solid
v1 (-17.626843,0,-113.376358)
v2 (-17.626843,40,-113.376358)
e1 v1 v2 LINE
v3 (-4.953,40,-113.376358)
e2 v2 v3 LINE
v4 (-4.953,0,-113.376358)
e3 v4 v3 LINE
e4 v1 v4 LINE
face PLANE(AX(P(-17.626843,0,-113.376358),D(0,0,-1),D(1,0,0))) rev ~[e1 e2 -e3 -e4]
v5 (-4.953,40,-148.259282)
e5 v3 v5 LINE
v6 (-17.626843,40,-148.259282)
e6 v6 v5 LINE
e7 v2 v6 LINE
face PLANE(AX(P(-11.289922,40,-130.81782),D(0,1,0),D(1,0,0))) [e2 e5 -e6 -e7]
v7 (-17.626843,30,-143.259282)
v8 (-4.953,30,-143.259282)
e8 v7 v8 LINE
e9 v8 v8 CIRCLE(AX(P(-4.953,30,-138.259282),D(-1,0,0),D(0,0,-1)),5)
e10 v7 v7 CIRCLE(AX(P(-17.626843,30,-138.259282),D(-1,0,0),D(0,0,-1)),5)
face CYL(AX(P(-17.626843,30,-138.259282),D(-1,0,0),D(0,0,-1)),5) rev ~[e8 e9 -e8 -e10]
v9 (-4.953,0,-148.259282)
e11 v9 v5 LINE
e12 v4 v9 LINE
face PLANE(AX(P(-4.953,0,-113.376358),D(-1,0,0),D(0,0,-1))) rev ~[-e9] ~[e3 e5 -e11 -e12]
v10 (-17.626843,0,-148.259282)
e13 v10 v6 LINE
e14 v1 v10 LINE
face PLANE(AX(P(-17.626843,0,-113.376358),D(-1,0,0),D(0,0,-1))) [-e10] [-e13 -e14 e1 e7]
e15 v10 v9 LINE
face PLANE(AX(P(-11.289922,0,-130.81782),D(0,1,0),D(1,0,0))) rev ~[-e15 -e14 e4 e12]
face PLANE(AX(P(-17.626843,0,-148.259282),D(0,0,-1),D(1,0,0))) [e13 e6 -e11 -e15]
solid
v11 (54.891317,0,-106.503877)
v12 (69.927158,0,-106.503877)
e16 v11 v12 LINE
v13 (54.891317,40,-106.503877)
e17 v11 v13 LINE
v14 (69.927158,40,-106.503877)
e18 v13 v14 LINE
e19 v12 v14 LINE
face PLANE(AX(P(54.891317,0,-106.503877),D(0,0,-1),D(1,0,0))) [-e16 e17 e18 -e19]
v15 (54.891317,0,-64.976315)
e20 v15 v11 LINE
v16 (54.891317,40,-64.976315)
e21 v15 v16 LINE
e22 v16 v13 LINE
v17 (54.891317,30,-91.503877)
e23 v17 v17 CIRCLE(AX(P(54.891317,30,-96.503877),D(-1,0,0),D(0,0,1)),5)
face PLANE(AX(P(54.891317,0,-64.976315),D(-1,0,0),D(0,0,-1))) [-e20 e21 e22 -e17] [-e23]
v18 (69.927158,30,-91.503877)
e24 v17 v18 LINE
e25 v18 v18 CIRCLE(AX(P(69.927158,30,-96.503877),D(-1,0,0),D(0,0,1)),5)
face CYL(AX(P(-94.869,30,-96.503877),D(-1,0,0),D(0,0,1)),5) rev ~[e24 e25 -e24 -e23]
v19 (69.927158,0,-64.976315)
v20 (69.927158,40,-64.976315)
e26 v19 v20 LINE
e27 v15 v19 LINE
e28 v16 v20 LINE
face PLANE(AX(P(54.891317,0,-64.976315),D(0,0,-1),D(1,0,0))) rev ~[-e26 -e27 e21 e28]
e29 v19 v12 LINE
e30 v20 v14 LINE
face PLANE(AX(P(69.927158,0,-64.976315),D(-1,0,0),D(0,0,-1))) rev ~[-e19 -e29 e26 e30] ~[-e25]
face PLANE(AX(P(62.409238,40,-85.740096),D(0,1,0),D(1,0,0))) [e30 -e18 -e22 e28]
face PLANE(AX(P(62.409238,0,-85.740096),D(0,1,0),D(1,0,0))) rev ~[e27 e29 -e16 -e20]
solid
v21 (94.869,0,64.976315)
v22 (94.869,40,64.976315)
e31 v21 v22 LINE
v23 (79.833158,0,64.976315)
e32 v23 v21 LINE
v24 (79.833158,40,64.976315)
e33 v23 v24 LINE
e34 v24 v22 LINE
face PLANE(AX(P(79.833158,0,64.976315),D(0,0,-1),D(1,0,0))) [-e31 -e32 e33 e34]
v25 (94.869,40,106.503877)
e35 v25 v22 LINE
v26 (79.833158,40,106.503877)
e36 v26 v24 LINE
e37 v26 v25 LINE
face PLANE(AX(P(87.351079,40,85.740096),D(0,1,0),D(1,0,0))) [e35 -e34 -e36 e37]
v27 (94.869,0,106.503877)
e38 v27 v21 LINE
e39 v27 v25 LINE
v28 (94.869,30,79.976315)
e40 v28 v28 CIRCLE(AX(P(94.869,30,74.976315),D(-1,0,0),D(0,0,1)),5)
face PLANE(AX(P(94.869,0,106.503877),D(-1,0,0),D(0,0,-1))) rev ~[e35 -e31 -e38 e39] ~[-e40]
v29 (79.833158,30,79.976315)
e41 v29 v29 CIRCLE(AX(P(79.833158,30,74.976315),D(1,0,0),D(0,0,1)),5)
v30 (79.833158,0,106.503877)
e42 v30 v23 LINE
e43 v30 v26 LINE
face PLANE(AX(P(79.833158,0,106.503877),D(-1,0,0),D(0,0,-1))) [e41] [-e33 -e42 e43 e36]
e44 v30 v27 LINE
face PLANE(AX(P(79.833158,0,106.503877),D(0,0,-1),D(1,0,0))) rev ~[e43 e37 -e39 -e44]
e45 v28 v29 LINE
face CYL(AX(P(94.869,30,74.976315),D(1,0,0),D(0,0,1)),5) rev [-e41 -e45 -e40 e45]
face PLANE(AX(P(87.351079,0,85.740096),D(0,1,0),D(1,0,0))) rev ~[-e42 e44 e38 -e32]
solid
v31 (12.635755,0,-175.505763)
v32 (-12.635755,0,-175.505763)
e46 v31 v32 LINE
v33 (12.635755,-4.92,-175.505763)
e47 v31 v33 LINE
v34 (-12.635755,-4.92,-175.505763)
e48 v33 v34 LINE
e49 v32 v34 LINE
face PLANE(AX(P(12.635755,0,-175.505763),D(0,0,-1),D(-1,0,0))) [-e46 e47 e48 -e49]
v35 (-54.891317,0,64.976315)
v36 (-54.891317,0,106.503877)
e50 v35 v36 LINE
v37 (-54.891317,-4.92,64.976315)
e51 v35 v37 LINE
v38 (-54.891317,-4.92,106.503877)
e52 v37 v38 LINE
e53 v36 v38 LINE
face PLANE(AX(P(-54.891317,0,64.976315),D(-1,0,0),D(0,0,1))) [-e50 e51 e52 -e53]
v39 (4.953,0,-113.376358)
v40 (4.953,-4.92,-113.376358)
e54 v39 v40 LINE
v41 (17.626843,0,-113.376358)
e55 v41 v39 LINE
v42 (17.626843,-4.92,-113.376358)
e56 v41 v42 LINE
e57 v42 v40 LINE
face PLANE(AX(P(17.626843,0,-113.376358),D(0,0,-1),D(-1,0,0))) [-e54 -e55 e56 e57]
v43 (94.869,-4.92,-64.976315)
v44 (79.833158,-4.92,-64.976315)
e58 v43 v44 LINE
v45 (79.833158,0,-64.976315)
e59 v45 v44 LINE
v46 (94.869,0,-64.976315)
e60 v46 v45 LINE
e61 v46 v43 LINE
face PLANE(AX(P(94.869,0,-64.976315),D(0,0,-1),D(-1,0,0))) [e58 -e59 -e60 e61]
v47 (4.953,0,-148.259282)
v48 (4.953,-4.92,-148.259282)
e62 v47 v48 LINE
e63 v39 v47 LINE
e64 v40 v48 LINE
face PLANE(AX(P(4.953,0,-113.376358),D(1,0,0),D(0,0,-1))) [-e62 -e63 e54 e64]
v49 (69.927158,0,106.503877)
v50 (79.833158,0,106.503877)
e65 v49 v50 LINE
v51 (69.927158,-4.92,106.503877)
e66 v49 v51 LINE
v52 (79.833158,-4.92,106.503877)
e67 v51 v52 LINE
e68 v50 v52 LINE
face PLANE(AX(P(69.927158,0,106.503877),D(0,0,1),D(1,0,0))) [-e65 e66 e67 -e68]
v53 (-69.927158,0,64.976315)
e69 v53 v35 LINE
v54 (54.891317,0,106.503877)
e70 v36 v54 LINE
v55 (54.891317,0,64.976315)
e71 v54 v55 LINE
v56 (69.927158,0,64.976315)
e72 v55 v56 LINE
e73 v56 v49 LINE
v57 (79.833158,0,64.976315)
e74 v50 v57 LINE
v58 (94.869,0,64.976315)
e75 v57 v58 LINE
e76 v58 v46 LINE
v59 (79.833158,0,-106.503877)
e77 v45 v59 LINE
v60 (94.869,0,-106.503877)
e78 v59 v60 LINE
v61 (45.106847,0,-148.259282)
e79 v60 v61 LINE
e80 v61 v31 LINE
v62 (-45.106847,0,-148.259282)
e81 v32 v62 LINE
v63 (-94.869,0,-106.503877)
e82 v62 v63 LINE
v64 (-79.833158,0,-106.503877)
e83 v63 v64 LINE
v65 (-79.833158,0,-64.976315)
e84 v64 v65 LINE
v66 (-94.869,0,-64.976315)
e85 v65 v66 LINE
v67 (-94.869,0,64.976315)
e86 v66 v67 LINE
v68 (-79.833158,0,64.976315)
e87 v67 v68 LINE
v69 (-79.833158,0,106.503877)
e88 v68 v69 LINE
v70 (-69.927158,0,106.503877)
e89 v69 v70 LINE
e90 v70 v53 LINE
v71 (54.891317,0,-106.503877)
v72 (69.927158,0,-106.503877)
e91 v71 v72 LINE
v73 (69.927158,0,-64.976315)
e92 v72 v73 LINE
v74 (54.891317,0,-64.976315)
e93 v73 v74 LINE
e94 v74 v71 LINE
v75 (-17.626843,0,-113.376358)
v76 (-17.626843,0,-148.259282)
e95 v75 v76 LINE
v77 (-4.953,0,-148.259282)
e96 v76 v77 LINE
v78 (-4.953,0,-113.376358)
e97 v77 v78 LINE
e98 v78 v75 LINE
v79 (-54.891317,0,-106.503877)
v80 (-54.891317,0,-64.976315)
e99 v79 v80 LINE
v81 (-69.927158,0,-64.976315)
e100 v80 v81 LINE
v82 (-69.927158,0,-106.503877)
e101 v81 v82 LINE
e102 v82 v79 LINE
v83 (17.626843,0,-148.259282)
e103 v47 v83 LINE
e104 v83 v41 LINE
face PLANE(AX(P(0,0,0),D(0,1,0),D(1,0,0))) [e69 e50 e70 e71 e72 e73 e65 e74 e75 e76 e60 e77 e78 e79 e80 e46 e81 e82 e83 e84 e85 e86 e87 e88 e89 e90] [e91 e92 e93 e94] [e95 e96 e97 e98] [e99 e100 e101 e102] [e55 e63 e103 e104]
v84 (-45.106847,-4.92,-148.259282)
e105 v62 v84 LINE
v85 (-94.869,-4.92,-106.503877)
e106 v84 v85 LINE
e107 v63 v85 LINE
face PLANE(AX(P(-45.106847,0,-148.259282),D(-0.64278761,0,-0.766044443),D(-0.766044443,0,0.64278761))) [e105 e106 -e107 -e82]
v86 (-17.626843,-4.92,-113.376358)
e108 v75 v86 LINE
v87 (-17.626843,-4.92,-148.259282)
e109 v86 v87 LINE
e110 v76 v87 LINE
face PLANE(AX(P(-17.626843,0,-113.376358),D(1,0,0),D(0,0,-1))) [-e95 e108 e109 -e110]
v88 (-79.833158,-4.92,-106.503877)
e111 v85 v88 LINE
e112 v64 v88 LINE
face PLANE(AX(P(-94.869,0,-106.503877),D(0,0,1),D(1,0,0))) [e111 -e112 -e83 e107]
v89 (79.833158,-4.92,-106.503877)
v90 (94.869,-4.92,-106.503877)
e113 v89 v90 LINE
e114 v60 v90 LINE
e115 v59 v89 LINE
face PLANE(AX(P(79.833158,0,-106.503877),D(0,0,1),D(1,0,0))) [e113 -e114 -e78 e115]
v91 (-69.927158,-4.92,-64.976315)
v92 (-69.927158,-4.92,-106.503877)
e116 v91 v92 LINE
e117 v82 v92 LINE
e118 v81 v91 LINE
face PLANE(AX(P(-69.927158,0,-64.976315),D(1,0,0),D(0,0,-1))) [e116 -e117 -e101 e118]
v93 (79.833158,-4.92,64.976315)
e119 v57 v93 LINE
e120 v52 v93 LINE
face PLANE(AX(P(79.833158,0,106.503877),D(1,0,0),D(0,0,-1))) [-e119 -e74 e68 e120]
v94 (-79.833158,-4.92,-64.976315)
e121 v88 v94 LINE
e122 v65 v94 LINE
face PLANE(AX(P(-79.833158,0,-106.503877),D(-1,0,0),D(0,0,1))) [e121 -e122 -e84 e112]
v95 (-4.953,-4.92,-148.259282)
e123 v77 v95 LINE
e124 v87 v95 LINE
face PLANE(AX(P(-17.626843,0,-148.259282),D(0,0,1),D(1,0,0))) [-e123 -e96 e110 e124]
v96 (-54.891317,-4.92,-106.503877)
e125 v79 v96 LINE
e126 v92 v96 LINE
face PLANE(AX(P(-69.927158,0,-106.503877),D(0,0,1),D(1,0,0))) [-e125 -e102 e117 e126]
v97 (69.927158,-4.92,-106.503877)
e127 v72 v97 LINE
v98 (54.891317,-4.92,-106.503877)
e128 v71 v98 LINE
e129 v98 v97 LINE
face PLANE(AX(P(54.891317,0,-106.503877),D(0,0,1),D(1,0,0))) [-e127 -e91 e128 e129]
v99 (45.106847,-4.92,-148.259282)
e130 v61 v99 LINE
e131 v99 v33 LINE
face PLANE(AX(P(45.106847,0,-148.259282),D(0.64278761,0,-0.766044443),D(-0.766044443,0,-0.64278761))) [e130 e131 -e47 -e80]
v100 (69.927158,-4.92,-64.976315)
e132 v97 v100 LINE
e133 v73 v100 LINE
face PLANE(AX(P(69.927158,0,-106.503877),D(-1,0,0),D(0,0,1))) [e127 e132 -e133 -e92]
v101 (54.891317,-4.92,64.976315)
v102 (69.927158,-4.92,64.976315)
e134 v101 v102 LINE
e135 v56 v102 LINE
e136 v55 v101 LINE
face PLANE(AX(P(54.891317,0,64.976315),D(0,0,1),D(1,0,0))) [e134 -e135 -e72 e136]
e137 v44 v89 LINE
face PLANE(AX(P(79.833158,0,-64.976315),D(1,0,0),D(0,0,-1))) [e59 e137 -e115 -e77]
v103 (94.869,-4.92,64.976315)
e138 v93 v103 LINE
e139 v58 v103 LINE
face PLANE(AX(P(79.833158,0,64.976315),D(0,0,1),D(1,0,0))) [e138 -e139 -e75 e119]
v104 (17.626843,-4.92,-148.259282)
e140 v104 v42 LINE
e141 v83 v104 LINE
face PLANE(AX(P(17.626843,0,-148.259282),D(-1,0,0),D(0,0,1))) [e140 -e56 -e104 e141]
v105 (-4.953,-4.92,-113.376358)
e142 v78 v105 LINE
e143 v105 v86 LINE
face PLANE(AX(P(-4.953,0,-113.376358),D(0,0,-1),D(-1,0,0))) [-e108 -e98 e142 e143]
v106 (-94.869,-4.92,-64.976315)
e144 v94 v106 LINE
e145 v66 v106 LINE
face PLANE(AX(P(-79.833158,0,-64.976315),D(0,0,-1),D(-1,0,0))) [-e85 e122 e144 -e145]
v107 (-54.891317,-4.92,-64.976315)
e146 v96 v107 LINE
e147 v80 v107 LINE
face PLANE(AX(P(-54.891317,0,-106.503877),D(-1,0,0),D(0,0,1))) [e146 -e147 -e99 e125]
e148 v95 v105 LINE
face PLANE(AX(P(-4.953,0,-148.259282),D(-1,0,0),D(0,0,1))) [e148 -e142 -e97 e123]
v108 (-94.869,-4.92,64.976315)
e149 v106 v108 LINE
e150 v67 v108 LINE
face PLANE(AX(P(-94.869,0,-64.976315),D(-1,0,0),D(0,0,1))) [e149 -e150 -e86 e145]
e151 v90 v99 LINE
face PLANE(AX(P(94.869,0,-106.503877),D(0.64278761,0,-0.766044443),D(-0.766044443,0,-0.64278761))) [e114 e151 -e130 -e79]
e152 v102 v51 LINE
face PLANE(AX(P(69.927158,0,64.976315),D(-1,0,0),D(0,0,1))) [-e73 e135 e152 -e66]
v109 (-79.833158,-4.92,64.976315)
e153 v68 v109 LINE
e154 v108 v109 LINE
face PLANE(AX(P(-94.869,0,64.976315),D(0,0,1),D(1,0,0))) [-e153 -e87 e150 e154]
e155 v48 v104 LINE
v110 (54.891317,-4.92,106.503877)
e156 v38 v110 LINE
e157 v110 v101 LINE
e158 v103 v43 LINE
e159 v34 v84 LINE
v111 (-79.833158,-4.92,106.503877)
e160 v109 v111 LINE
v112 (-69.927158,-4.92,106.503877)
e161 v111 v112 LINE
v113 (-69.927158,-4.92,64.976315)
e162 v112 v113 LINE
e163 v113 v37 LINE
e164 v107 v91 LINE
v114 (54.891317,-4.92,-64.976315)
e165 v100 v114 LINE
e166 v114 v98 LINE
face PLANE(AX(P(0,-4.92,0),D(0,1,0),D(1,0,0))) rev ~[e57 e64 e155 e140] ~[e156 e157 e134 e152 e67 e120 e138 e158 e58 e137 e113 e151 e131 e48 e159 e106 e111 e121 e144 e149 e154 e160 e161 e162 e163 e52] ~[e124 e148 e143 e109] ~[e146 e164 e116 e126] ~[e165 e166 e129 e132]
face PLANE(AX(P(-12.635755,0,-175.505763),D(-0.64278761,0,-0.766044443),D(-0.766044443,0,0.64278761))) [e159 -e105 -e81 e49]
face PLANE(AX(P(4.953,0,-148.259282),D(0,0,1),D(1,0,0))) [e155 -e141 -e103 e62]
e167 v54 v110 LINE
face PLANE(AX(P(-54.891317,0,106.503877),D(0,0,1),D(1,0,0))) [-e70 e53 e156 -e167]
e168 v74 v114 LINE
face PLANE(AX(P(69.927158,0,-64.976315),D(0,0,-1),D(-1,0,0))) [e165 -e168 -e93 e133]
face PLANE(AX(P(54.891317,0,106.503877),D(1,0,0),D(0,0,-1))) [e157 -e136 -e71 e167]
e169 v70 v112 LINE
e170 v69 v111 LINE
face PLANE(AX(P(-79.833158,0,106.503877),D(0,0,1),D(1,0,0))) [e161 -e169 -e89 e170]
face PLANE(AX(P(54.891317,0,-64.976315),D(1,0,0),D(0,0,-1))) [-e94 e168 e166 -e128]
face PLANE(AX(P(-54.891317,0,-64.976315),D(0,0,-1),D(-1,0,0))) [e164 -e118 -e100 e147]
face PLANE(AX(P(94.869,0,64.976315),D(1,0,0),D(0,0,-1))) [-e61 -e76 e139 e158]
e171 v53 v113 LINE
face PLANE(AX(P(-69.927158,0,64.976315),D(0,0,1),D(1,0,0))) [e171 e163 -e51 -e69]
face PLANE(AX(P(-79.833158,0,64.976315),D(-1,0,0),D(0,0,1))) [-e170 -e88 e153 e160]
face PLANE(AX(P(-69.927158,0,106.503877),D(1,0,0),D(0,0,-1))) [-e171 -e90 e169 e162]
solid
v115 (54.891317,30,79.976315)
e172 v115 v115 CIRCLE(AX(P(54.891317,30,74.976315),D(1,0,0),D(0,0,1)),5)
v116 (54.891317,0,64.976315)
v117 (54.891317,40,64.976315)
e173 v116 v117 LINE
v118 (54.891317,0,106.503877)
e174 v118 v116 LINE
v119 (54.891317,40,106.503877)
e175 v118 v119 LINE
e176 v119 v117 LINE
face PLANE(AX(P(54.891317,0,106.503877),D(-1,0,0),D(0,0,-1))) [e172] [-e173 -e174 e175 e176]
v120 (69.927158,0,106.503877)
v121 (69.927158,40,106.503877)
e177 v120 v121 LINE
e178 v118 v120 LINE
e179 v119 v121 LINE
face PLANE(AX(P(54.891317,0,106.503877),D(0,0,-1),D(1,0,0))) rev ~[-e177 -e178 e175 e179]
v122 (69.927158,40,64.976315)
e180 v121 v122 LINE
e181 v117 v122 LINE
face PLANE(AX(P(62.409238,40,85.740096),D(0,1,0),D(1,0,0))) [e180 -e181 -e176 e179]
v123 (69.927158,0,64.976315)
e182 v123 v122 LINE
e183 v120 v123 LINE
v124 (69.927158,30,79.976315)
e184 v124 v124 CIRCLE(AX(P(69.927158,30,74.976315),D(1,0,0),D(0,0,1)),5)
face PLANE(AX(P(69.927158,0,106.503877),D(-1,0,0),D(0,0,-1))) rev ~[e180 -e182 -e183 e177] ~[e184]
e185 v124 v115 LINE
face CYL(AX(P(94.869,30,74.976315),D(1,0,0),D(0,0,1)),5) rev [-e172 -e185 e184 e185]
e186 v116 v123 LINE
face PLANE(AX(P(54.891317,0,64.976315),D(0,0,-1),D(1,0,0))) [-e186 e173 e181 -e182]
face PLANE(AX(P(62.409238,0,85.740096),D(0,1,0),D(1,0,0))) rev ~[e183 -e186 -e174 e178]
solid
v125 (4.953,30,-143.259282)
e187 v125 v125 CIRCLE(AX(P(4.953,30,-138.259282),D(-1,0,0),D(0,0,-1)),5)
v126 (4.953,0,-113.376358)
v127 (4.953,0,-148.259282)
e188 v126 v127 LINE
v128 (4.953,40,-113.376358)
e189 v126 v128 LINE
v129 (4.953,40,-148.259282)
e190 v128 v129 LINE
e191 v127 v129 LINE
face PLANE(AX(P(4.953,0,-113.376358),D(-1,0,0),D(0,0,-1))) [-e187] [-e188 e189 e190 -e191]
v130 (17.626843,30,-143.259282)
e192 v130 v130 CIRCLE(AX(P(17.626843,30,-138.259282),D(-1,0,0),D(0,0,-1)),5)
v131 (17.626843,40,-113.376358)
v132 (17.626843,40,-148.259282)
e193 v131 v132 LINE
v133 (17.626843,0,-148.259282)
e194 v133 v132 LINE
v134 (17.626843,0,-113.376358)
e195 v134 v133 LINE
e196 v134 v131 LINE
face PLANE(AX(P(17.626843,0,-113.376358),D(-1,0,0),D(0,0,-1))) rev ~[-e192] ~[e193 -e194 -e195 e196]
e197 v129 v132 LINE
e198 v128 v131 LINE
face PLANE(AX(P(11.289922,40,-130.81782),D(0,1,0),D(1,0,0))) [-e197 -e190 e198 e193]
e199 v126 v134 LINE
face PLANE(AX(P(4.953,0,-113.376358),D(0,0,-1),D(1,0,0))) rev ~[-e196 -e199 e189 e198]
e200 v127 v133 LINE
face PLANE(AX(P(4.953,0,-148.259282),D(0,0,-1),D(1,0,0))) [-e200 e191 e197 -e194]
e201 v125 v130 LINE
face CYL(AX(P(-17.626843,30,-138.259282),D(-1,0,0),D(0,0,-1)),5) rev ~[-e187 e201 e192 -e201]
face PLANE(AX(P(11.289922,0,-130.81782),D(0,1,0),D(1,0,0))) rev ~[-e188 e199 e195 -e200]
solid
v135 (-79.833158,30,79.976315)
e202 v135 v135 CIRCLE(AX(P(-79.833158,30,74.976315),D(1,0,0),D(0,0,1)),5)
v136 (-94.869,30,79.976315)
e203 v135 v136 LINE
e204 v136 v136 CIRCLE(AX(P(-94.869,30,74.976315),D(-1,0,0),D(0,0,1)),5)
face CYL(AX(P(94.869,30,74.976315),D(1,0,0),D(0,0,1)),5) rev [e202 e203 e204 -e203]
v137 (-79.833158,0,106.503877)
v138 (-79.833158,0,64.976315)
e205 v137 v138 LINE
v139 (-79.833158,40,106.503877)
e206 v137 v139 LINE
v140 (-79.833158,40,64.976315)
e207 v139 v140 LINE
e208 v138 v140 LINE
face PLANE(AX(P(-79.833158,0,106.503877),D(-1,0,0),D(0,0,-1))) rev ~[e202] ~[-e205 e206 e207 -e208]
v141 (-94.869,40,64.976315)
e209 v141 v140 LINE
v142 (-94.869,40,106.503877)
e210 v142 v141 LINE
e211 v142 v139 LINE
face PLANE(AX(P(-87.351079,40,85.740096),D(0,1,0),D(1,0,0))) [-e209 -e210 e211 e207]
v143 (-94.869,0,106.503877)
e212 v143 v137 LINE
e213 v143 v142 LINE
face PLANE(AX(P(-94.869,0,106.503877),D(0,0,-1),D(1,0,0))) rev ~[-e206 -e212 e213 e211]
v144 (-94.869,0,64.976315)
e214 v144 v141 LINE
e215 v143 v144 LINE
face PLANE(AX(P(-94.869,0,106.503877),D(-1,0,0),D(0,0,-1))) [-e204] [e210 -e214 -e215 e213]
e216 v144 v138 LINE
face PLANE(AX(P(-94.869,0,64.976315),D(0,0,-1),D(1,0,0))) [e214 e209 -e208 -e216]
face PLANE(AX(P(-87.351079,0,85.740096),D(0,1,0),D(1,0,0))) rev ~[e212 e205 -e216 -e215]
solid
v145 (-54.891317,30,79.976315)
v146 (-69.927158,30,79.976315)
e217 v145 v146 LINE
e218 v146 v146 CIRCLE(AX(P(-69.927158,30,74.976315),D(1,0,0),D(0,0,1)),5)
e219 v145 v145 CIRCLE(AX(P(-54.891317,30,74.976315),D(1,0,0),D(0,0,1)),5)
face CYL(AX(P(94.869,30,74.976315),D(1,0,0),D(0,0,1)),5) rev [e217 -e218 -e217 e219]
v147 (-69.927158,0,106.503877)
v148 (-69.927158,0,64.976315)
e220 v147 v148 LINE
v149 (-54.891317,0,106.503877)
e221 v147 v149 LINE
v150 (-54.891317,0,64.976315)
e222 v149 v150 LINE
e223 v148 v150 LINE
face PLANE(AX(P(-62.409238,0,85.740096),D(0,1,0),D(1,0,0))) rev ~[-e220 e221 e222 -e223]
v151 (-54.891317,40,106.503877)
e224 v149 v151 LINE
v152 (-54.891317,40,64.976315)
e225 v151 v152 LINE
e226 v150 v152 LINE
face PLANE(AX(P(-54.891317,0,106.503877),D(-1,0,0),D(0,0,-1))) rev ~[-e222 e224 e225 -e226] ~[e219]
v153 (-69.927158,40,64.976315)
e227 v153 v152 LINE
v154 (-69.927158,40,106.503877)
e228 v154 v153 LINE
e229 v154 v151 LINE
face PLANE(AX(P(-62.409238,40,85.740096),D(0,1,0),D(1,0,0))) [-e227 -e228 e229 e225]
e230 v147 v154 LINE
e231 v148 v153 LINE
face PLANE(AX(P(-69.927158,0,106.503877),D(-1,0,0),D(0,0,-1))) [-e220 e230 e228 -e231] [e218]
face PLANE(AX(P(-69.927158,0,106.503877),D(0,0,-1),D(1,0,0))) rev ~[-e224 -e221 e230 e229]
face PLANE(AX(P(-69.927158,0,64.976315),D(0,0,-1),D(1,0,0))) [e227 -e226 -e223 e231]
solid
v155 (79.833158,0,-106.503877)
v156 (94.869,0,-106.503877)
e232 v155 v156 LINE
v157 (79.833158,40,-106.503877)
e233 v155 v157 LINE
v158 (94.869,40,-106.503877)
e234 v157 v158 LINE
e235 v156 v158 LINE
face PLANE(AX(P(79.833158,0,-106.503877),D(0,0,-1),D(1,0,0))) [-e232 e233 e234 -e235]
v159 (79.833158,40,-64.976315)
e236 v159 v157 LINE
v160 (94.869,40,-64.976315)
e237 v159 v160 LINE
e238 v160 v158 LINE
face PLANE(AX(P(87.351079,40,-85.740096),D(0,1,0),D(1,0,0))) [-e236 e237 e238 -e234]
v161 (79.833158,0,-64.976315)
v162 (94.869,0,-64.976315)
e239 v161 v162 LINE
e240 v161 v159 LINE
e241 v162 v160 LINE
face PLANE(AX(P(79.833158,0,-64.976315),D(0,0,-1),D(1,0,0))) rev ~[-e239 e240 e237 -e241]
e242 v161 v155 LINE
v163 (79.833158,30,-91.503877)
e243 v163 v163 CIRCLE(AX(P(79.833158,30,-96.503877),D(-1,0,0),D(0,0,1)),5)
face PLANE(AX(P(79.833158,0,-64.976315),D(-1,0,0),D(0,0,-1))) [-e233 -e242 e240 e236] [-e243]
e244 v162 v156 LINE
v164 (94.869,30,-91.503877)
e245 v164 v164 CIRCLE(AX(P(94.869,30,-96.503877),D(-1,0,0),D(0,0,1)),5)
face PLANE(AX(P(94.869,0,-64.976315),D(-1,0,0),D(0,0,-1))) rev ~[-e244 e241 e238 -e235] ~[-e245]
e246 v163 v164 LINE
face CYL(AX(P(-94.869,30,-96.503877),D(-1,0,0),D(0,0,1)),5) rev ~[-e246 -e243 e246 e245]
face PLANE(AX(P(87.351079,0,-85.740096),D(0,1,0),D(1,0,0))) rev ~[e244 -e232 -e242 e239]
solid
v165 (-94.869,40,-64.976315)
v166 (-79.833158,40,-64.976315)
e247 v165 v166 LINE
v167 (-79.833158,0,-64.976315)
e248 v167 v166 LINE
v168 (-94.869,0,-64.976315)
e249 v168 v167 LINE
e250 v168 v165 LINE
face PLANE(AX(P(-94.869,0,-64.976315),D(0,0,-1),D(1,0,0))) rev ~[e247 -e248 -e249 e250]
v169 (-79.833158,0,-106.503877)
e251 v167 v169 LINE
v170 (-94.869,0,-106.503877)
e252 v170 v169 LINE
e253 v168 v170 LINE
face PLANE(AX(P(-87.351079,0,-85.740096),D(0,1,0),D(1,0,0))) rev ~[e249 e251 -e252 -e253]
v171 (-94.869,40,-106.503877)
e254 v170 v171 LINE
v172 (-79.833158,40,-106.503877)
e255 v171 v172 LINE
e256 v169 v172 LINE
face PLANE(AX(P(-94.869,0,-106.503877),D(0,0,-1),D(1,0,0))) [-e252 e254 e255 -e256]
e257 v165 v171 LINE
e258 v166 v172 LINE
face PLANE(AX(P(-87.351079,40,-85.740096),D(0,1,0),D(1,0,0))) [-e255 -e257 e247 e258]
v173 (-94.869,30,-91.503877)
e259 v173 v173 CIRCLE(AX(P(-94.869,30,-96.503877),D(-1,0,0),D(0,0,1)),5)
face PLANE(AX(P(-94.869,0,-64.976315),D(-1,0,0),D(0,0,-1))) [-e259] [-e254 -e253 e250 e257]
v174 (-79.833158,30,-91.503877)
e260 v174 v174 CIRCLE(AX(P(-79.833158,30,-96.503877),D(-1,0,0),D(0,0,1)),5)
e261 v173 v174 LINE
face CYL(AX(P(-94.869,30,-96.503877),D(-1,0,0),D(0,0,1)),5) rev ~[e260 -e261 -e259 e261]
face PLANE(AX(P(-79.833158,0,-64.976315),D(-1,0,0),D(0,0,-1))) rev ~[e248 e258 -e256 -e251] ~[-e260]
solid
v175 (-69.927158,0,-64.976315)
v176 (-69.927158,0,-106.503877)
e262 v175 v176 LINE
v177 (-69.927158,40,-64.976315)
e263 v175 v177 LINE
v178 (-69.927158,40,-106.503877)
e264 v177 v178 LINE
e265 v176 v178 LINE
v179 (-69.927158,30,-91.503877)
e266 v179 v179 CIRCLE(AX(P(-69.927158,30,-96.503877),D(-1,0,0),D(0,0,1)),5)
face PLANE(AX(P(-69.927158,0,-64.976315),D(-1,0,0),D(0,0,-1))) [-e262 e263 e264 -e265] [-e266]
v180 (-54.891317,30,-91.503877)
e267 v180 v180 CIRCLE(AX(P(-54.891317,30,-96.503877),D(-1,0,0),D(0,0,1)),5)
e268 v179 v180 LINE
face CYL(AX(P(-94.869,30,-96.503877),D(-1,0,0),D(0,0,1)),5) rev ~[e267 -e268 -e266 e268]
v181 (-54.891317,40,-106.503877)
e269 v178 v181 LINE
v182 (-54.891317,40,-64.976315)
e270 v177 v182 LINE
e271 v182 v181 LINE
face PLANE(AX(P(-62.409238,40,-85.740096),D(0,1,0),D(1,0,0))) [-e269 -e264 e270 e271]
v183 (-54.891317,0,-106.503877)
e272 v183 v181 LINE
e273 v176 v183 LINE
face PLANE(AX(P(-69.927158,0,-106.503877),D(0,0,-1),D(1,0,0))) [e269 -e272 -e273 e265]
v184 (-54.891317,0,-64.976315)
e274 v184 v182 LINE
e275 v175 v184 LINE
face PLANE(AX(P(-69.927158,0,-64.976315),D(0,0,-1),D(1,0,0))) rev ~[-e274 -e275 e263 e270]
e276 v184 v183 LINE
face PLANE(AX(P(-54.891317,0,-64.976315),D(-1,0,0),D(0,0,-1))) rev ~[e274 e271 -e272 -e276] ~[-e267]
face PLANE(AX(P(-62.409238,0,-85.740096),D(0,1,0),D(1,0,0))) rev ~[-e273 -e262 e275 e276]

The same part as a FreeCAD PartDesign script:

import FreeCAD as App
import Part
import Sketcher

V = App.Vector
Q = App.Units.Quantity


def add_polygon(sketch, points):
    """Adds a closed chain of lines whose ends are joined by coincident constraints."""
    first, n = sketch.GeometryCount, len(points)
    for a, b in zip(points, points[1:] + points[:1]):
        sketch.addGeometry(Part.LineSegment(App.Vector(*a, 0), App.Vector(*b, 0)), False)
    for i in range(n):
        sketch.addConstraint(Sketcher.Constraint("Coincident", first + i, 2, first + (i + 1) % n, 1))

doc = App.newDocument("Part")
body = doc.addObject("PartDesign::Body", "Body")

# Sketch on XZ plane
sketch1 = body.newObject("Sketcher::SketchObject", "Sketch")
sketch1.AttachmentSupport = (doc.getObject("XZ_Plane"), [""])
sketch1.MapMode = "FlatFace"
add_polygon(sketch1, [(-18, -148), (-18, -113), (-5, -113), (-5, -148)])  # lines 0-3
sketch1.addConstraint(Sketcher.Constraint("Vertical", 0))
sketch1.addConstraint(Sketcher.Constraint("Horizontal", 1))
sketch1.addConstraint(Sketcher.Constraint("Vertical", 2))
sketch1.addConstraint(Sketcher.Constraint("Horizontal", 3))
sketch1.addConstraint(Sketcher.Constraint("DistanceX", 1, 2, -1, 1, Q("4.953 mm")))
sketch1.addConstraint(Sketcher.Constraint("DistanceX", 1, 1, 1, 2, Q("12.673843 mm")))
sketch1.addConstraint(Sketcher.Constraint("DistanceY", 0, 1, 0, 2, Q("34.882924 mm")))
sketch1.addConstraint(Sketcher.Constraint("DistanceY", 2, 2, -1, 1, Q("148.259282 mm")))
pad1 = body.newObject("PartDesign::Pad", "Pad")
pad1.Profile = sketch1
pad1.Length = 40
pad1.Reversed = True
body2 = doc.addObject("PartDesign::Body", "Body001")

# Sketch on XZ plane
sketch2 = body2.newObject("Sketcher::SketchObject", "Sketch001")
sketch2.AttachmentSupport = (doc.getObject("XZ_Plane001"), [""])
sketch2.MapMode = "FlatFace"
add_polygon(sketch2, [(-95, -107), (-95, -65), (-80, -65), (-80, -107)])  # lines 0-3
sketch2.addConstraint(Sketcher.Constraint("Vertical", 0))
sketch2.addConstraint(Sketcher.Constraint("Horizontal", 1))
sketch2.addConstraint(Sketcher.Constraint("Vertical", 2))
sketch2.addConstraint(Sketcher.Constraint("Horizontal", 3))
sketch2.addConstraint(Sketcher.Constraint("DistanceX", 0, 2, -1, 1, Q("94.869 mm")))
sketch2.addConstraint(Sketcher.Constraint("DistanceX", 1, 1, 1, 2, Q("15.035842 mm")))
sketch2.addConstraint(Sketcher.Constraint("DistanceY", 0, 1, 0, 2, Q("41.527562 mm")))
sketch2.addConstraint(Sketcher.Constraint("DistanceY", 0, 2, -1, 1, Q("64.976315 mm")))
pad2 = body2.newObject("PartDesign::Pad", "Pad001")
pad2.Profile = sketch2
pad2.Length = 40
pad2.Reversed = True
body3 = doc.addObject("PartDesign::Body", "Body002")

# Sketch on XZ plane
sketch3 = body3.newObject("Sketcher::SketchObject", "Sketch002")
sketch3.AttachmentSupport = (doc.getObject("XZ_Plane002"), [""])
sketch3.MapMode = "FlatFace"
add_polygon(sketch3, [(-70, -107), (-70, -65), (-55, -65), (-55, -107)])  # lines 0-3
sketch3.addConstraint(Sketcher.Constraint("Vertical", 0))
sketch3.addConstraint(Sketcher.Constraint("Horizontal", 1))
sketch3.addConstraint(Sketcher.Constraint("Vertical", 2))
sketch3.addConstraint(Sketcher.Constraint("Horizontal", 3))
sketch3.addConstraint(Sketcher.Constraint("DistanceX", 1, 1, 1, 2, Q("15.035842 mm")))
sketch3.addConstraint(Sketcher.Constraint("DistanceY", 0, 1, 0, 2, Q("41.527562 mm")))
sketch3.addConstraint(Sketcher.Constraint("DistanceX", 0, 2, -1, 1, Q("69.927158 mm")))
sketch3.addConstraint(Sketcher.Constraint("DistanceY", 0, 2, -1, 1, Q("64.976315 mm")))
pad3 = body3.newObject("PartDesign::Pad", "Pad002")
pad3.Profile = sketch3
pad3.Length = 40
pad3.Reversed = True
body4 = doc.addObject("PartDesign::Body", "Body003")

# Sketch on XZ plane
sketch4 = body4.newObject("Sketcher::SketchObject", "Sketch003")
sketch4.AttachmentSupport = (doc.getObject("XZ_Plane003"), [""])
sketch4.MapMode = "FlatFace"
add_polygon(sketch4, [(55, -107), (55, -65), (70, -65), (70, -107)])  # lines 0-3
sketch4.addConstraint(Sketcher.Constraint("Vertical", 0))
sketch4.addConstraint(Sketcher.Constraint("Horizontal", 1))
sketch4.addConstraint(Sketcher.Constraint("Vertical", 2))
sketch4.addConstraint(Sketcher.Constraint("Horizontal", 3))
sketch4.addConstraint(Sketcher.Constraint("DistanceX", 1, 1, 1, 2, Q("15.035842 mm")))
sketch4.addConstraint(Sketcher.Constraint("DistanceY", 0, 1, 0, 2, Q("41.527562 mm")))
sketch4.addConstraint(Sketcher.Constraint("DistanceX", -1, 1, 1, 2, Q("69.927158 mm")))
sketch4.addConstraint(Sketcher.Constraint("DistanceY", 0, 2, -1, 1, Q("64.976315 mm")))
pad4 = body4.newObject("PartDesign::Pad", "Pad003")
pad4.Profile = sketch4
pad4.Length = 40
pad4.Reversed = True
body5 = doc.addObject("PartDesign::Body", "Body004")

# Sketch on XZ plane
sketch5 = body5.newObject("Sketcher::SketchObject", "Sketch004")
sketch5.AttachmentSupport = (doc.getObject("XZ_Plane004"), [""])
sketch5.MapMode = "FlatFace"
add_polygon(sketch5, [(80, -107), (80, -65), (95, -65), (95, -107)])  # lines 0-3
sketch5.addConstraint(Sketcher.Constraint("Vertical", 0))
sketch5.addConstraint(Sketcher.Constraint("Horizontal", 1))
sketch5.addConstraint(Sketcher.Constraint("Vertical", 2))
sketch5.addConstraint(Sketcher.Constraint("Horizontal", 3))
sketch5.addConstraint(Sketcher.Constraint("DistanceX", -1, 1, 1, 2, Q("94.869 mm")))
sketch5.addConstraint(Sketcher.Constraint("DistanceX", 1, 1, 1, 2, Q("15.035842 mm")))
sketch5.addConstraint(Sketcher.Constraint("DistanceY", 0, 1, 0, 2, Q("41.527562 mm")))
sketch5.addConstraint(Sketcher.Constraint("DistanceY", 0, 2, -1, 1, Q("64.976315 mm")))
pad5 = body5.newObject("PartDesign::Pad", "Pad004")
pad5.Profile = sketch5
pad5.Length = 40
pad5.Reversed = True
body6 = doc.addObject("PartDesign::Body", "Body005")

# Sketch on XZ plane
sketch6 = body6.newObject("Sketcher::SketchObject", "Sketch005")
sketch6.AttachmentSupport = (doc.getObject("XZ_Plane005"), [""])
sketch6.MapMode = "FlatFace"
add_polygon(sketch6, [(-95, 65), (-95, 107), (-80, 107), (-80, 65)])  # lines 0-3
sketch6.addConstraint(Sketcher.Constraint("Vertical", 0))
sketch6.addConstraint(Sketcher.Constraint("Horizontal", 1))
sketch6.addConstraint(Sketcher.Constraint("Vertical", 2))
sketch6.addConstraint(Sketcher.Constraint("Horizontal", 3))
sketch6.addConstraint(Sketcher.Constraint("DistanceX", 0, 2, -1, 1, Q("94.869 mm")))
sketch6.addConstraint(Sketcher.Constraint("DistanceX", 1, 1, 1, 2, Q("15.035842 mm")))
sketch6.addConstraint(Sketcher.Constraint("DistanceY", 0, 1, 0, 2, Q("41.527562 mm")))
sketch6.addConstraint(Sketcher.Constraint("DistanceY", -1, 1, 0, 2, Q("106.503877 mm")))
pad6 = body6.newObject("PartDesign::Pad", "Pad005")
pad6.Profile = sketch6
pad6.Length = 40
pad6.Reversed = True
body7 = doc.addObject("PartDesign::Body", "Body006")

# Sketch on XZ plane
sketch7 = body7.newObject("Sketcher::SketchObject", "Sketch006")
sketch7.AttachmentSupport = (doc.getObject("XZ_Plane006"), [""])
sketch7.MapMode = "FlatFace"
add_polygon(sketch7, [(-70, 65), (-70, 107), (-55, 107), (-55, 65)])  # lines 0-3
sketch7.addConstraint(Sketcher.Constraint("Vertical", 0))
sketch7.addConstraint(Sketcher.Constraint("Horizontal", 1))
sketch7.addConstraint(Sketcher.Constraint("Vertical", 2))
sketch7.addConstraint(Sketcher.Constraint("Horizontal", 3))
sketch7.addConstraint(Sketcher.Constraint("DistanceX", 1, 1, 1, 2, Q("15.035842 mm")))
sketch7.addConstraint(Sketcher.Constraint("DistanceY", 0, 1, 0, 2, Q("41.527562 mm")))
sketch7.addConstraint(Sketcher.Constraint("DistanceX", 0, 2, -1, 1, Q("69.927158 mm")))
sketch7.addConstraint(Sketcher.Constraint("DistanceY", -1, 1, 0, 2, Q("106.503877 mm")))
pad7 = body7.newObject("PartDesign::Pad", "Pad006")
pad7.Profile = sketch7
pad7.Length = 40
pad7.Reversed = True
body8 = doc.addObject("PartDesign::Body", "Body007")

# Sketch on XZ plane
sketch8 = body8.newObject("Sketcher::SketchObject", "Sketch007")
sketch8.AttachmentSupport = (doc.getObject("XZ_Plane007"), [""])
sketch8.MapMode = "FlatFace"
add_polygon(sketch8, [(55, 65), (55, 107), (70, 107), (70, 65)])  # lines 0-3
sketch8.addConstraint(Sketcher.Constraint("Vertical", 0))
sketch8.addConstraint(Sketcher.Constraint("Horizontal", 1))
sketch8.addConstraint(Sketcher.Constraint("Vertical", 2))
sketch8.addConstraint(Sketcher.Constraint("Horizontal", 3))
sketch8.addConstraint(Sketcher.Constraint("DistanceX", 1, 1, 1, 2, Q("15.035842 mm")))
sketch8.addConstraint(Sketcher.Constraint("DistanceY", 0, 1, 0, 2, Q("41.527562 mm")))
sketch8.addConstraint(Sketcher.Constraint("DistanceX", -1, 1, 1, 2, Q("69.927158 mm")))
sketch8.addConstraint(Sketcher.Constraint("DistanceY", -1, 1, 0, 2, Q("106.503877 mm")))
pad8 = body8.newObject("PartDesign::Pad", "Pad007")
pad8.Profile = sketch8
pad8.Length = 40
pad8.Reversed = True
body9 = doc.addObject("PartDesign::Body", "Body008")

# Sketch on XZ plane
sketch9 = body9.newObject("Sketcher::SketchObject", "Sketch008")
sketch9.AttachmentSupport = (doc.getObject("XZ_Plane008"), [""])
sketch9.MapMode = "FlatFace"
add_polygon(sketch9, [(80, 65), (80, 107), (95, 107), (95, 65)])  # lines 0-3
sketch9.addConstraint(Sketcher.Constraint("Vertical", 0))
sketch9.addConstraint(Sketcher.Constraint("Horizontal", 1))
sketch9.addConstraint(Sketcher.Constraint("Vertical", 2))
sketch9.addConstraint(Sketcher.Constraint("Horizontal", 3))
sketch9.addConstraint(Sketcher.Constraint("DistanceX", -1, 1, 1, 2, Q("94.869 mm")))
sketch9.addConstraint(Sketcher.Constraint("DistanceX", 1, 1, 1, 2, Q("15.035842 mm")))
sketch9.addConstraint(Sketcher.Constraint("DistanceY", 0, 1, 0, 2, Q("41.527562 mm")))
sketch9.addConstraint(Sketcher.Constraint("DistanceY", -1, 1, 0, 2, Q("106.503877 mm")))
pad9 = body9.newObject("PartDesign::Pad", "Pad008")
pad9.Profile = sketch9
pad9.Length = 40
pad9.Reversed = True
body10 = doc.addObject("PartDesign::Body", "Body009")

# Sketch on XZ plane
sketch10 = body10.newObject("Sketcher::SketchObject", "Sketch009")
sketch10.AttachmentSupport = (doc.getObject("XZ_Plane009"), [""])
sketch10.MapMode = "FlatFace"
add_polygon(sketch10, [(5, -148), (5, -113), (18, -113), (18, -148)])  # lines 0-3
sketch10.addConstraint(Sketcher.Constraint("Vertical", 0))
sketch10.addConstraint(Sketcher.Constraint("Horizontal", 1))
sketch10.addConstraint(Sketcher.Constraint("Vertical", 2))
sketch10.addConstraint(Sketcher.Constraint("Horizontal", 3))
sketch10.addConstraint(Sketcher.Constraint("DistanceX", -1, 1, 0, 2, Q("4.953 mm")))
sketch10.addConstraint(Sketcher.Constraint("DistanceX", 1, 1, 1, 2, Q("12.673843 mm")))
sketch10.addConstraint(Sketcher.Constraint("DistanceY", 0, 1, 0, 2, Q("34.882924 mm")))
sketch10.addConstraint(Sketcher.Constraint("DistanceY", 2, 2, -1, 1, Q("148.259282 mm")))
pad10 = body10.newObject("PartDesign::Pad", "Pad009")
pad10.Profile = sketch10
pad10.Length = 40
pad10.Reversed = True
body11 = doc.addObject("PartDesign::Body", "Body010")

# Sketch on XZ plane
sketch11 = body11.newObject("Sketcher::SketchObject", "Sketch010")
sketch11.AttachmentSupport = (doc.getObject("XZ_Plane010"), [""])
sketch11.MapMode = "FlatFace"
add_polygon(sketch11, [(80, 107), (80, 65), (95, 65), (95, -65), (80, -65), (80, -107), (95, -107), (45, -148), (13, -176), (-13, -176), (-45, -148), (-95, -107), (-80, -107), (-80, -65), (-95, -65), (-95, 65), (-80, 65), (-80, 107), (-70, 107), (-70, 65), (-55, 65), (-55, 107), (55, 107), (55, 65), (70, 65), (70, 107)])  # lines 0-25
add_polygon(sketch11, [(18, -148), (18, -113), (5, -113), (5, -148)])  # lines 26-29
add_polygon(sketch11, [(-5, -148), (-5, -113), (-18, -113), (-18, -148)])  # lines 30-33
add_polygon(sketch11, [(70, -107), (70, -65), (55, -65), (55, -107)])  # lines 34-37
add_polygon(sketch11, [(-55, -107), (-55, -65), (-70, -65), (-70, -107)])  # lines 38-41
sketch11.addConstraint(Sketcher.Constraint("Vertical", 0))
sketch11.addConstraint(Sketcher.Constraint("Horizontal", 1))
sketch11.addConstraint(Sketcher.Constraint("Vertical", 2))
sketch11.addConstraint(Sketcher.Constraint("Horizontal", 3))
sketch11.addConstraint(Sketcher.Constraint("Vertical", 4))
sketch11.addConstraint(Sketcher.Constraint("Horizontal", 5))
sketch11.addConstraint(Sketcher.Constraint("Horizontal", 8))
sketch11.addConstraint(Sketcher.Constraint("Horizontal", 11))
sketch11.addConstraint(Sketcher.Constraint("Vertical", 12))
sketch11.addConstraint(Sketcher.Constraint("Horizontal", 13))
sketch11.addConstraint(Sketcher.Constraint("Vertical", 14))
sketch11.addConstraint(Sketcher.Constraint("Horizontal", 15))
sketch11.addConstraint(Sketcher.Constraint("Vertical", 16))
sketch11.addConstraint(Sketcher.Constraint("Horizontal", 17))
sketch11.addConstraint(Sketcher.Constraint("Vertical", 18))
sketch11.addConstraint(Sketcher.Constraint("Horizontal", 19))
sketch11.addConstraint(Sketcher.Constraint("Vertical", 20))
sketch11.addConstraint(Sketcher.Constraint("Horizontal", 21))
sketch11.addConstraint(Sketcher.Constraint("Vertical", 22))
sketch11.addConstraint(Sketcher.Constraint("Horizontal", 23))
sketch11.addConstraint(Sketcher.Constraint("Vertical", 24))
sketch11.addConstraint(Sketcher.Constraint("Horizontal", 25))
sketch11.addConstraint(Sketcher.Constraint("Vertical", 26))
sketch11.addConstraint(Sketcher.Constraint("Horizontal", 27))
sketch11.addConstraint(Sketcher.Constraint("Vertical", 28))
sketch11.addConstraint(Sketcher.Constraint("Horizontal", 29))
sketch11.addConstraint(Sketcher.Constraint("Vertical", 30))
sketch11.addConstraint(Sketcher.Constraint("Horizontal", 31))
sketch11.addConstraint(Sketcher.Constraint("Vertical", 32))
sketch11.addConstraint(Sketcher.Constraint("Horizontal", 33))
sketch11.addConstraint(Sketcher.Constraint("Vertical", 34))
sketch11.addConstraint(Sketcher.Constraint("Horizontal", 35))
sketch11.addConstraint(Sketcher.Constraint("Vertical", 36))
sketch11.addConstraint(Sketcher.Constraint("Horizontal", 37))
sketch11.addConstraint(Sketcher.Constraint("Vertical", 38))
sketch11.addConstraint(Sketcher.Constraint("Horizontal", 39))
sketch11.addConstraint(Sketcher.Constraint("Vertical", 40))
sketch11.addConstraint(Sketcher.Constraint("Horizontal", 41))
sketch11.addConstraint(Sketcher.Constraint("Symmetric", 0, 2, 12, 2, -1, 1))
sketch11.addConstraint(Sketcher.Constraint("Symmetric", 2, 2, 14, 2, -1, 1))
sketch11.addConstraint(Sketcher.Constraint("Symmetric", 4, 2, 16, 2, -1, 1))
sketch11.addConstraint(Sketcher.Constraint("Symmetric", 18, 2, 34, 2, -1, 1))
sketch11.addConstraint(Sketcher.Constraint("Symmetric", 20, 2, 36, 2, -1, 1))
sketch11.addConstraint(Sketcher.Constraint("Symmetric", 22, 2, 38, 2, -1, 1))
sketch11.addConstraint(Sketcher.Constraint("Symmetric", 24, 2, 40, 2, -1, 1))
sketch11.addConstraint(Sketcher.Constraint("Symmetric", 6, 2, 9, 2, -2))
sketch11.addConstraint(Sketcher.Constraint("Symmetric", 5, 2, 10, 2, -2))
sketch11.addConstraint(Sketcher.Constraint("Symmetric", 3, 2, 12, 2, -2))
sketch11.addConstraint(Sketcher.Constraint("Symmetric", 19, 2, 22, 2, -2))
sketch11.addConstraint(Sketcher.Constraint("Symmetric", 17, 2, 24, 2, -2))
sketch11.addConstraint(Sketcher.Constraint("Symmetric", 27, 2, 30, 2, -2))
sketch11.addConstraint(Sketcher.Constraint("Symmetric", 29, 2, 32, 2, -2))
sketch11.addConstraint(Sketcher.Constraint("Parallel", 6, 7))
sketch11.addConstraint(Sketcher.Constraint("Parallel", 9, 10))
sketch11.addConstraint(Sketcher.Constraint("Horizontal", 15, 2, 18, 2))
sketch11.addConstraint(Sketcher.Constraint("Horizontal", 17, 2, 20, 2))
sketch11.addConstraint(Sketcher.Constraint("Horizontal", 9, 2, 28, 2))
sketch11.addConstraint(Sketcher.Constraint("Vertical", 2, 2, 5, 2))
sketch11.addConstraint(Sketcher.Constraint("Equal", 15, 19))
sketch11.addConstraint(Sketcher.Constraint("Angle", 6, Q("-140 deg")))
sketch11.addConstraint(Sketcher.Constraint("DistanceX", 17, 1, 17, 2, Q("9.906 mm")))
sketch11.addConstraint(Sketcher.Constraint("Distance", 7, Q("42.388 mm")))
sketch11.addConstraint(Sketcher.Constraint("DistanceX", -1, 1, 1, 2, Q("94.869 mm")))
sketch11.addConstraint(Sketcher.Constraint("DistanceX", -1, 1, 27, 2, Q("4.953 mm")))
sketch11.addConstraint(Sketcher.Constraint("DistanceX", 1, 1, 1, 2, Q("15.035842 mm")))
sketch11.addConstraint(Sketcher.Constraint("DistanceX", 8, 2, 8, 1, Q("25.271511 mm")))
sketch11.addConstraint(Sketcher.Constraint("DistanceY", 2, 2, 2, 1, Q("129.95263 mm")))
sketch11.addConstraint(Sketcher.Constraint("DistanceX", 8, 2, 26, 2, Q("30.262599 mm")))
sketch11.addConstraint(Sketcher.Constraint("DistanceY", 0, 2, 0, 1, Q("41.527562 mm")))
sketch11.addConstraint(Sketcher.Constraint("DistanceY", 26, 1, 26, 2, Q("34.882924 mm")))
pad11 = body11.newObject("PartDesign::Pad", "Pad010")
pad11.Profile = sketch11
pad11.Length = 4.92
body12 = doc.addObject("PartDesign::Body", "Body011")

# Sketch on YZ plane
sketch12 = body12.newObject("Sketcher::SketchObject", "Sketch011")
sketch12.AttachmentSupport = (doc.getObject("YZ_Plane011"), [""])
sketch12.MapMode = "FlatFace"
sketch12.AttachmentOffset = App.Placement(V(0, 0, 94.869), App.Rotation())
sketch12.addGeometry(Part.Circle(V(30, 75, 0), V(0, 0, 1), 5), False)
sketch12.addConstraint(Sketcher.Constraint("Diameter", 0, Q("10 mm")))
sketch12.addConstraint(Sketcher.Constraint("DistanceX", -1, 1, 0, 3, Q("30 mm")))
sketch12.addConstraint(Sketcher.Constraint("DistanceY", -1, 1, 0, 3, Q("74.976315 mm")))
pad12 = body12.newObject("PartDesign::Pad", "Pad011")
pad12.Profile = sketch12
pad12.Length = 189.738
pad12.Reversed = True
doc.recompute()

body13 = doc.addObject("PartDesign::Body", "Body012")
body13.BaseFeature = body12
boolean = body6.newObject("PartDesign::Boolean", "Boolean")
boolean.Type = "Cut"
boolean.addObjects([body13])
doc.recompute()

body14 = doc.addObject("PartDesign::Body", "Body013")
body14.BaseFeature = body12
boolean2 = body7.newObject("PartDesign::Boolean", "Boolean001")
boolean2.Type = "Cut"
boolean2.addObjects([body14])
doc.recompute()

body15 = doc.addObject("PartDesign::Body", "Body014")
body15.BaseFeature = body12
boolean3 = body8.newObject("PartDesign::Boolean", "Boolean002")
boolean3.Type = "Cut"
boolean3.addObjects([body15])
doc.recompute()

boolean4 = body9.newObject("PartDesign::Boolean", "Boolean003")
boolean4.Type = "Cut"
boolean4.addObjects([body12])
body16 = doc.addObject("PartDesign::Body", "Body015")

# Sketch on YZ plane
sketch13 = body16.newObject("Sketcher::SketchObject", "Sketch012")
sketch13.AttachmentSupport = (doc.getObject("YZ_Plane015"), [""])
sketch13.MapMode = "FlatFace"
sketch13.AttachmentOffset = App.Placement(V(0, 0, -17.626843), App.Rotation())
sketch13.addGeometry(Part.Circle(V(30, -138, 0), V(0, 0, 1), 5), False)
sketch13.addConstraint(Sketcher.Constraint("Diameter", 0, Q("10 mm")))
sketch13.addConstraint(Sketcher.Constraint("DistanceX", -1, 1, 0, 3, Q("30 mm")))
sketch13.addConstraint(Sketcher.Constraint("DistanceY", 0, 3, -1, 1, Q("138.259282 mm")))
pad13 = body16.newObject("PartDesign::Pad", "Pad012")
pad13.Profile = sketch13
pad13.Length = 203.294
doc.recompute()

body17 = doc.addObject("PartDesign::Body", "Body016")
body17.BaseFeature = body16
boolean5 = body.newObject("PartDesign::Boolean", "Boolean004")
boolean5.Type = "Cut"
boolean5.addObjects([body17])
doc.recompute()

boolean6 = body10.newObject("PartDesign::Boolean", "Boolean005")
boolean6.Type = "Cut"
boolean6.addObjects([body16])
body18 = doc.addObject("PartDesign::Body", "Body017")

# Sketch on YZ plane
sketch14 = body18.newObject("Sketcher::SketchObject", "Sketch013")
sketch14.AttachmentSupport = (doc.getObject("YZ_Plane017"), [""])
sketch14.MapMode = "FlatFace"
sketch14.AttachmentOffset = App.Placement(V(0, 0, -94.869), App.Rotation())
sketch14.addGeometry(Part.Circle(V(30, -97, 0), V(0, 0, 1), 5), False)
sketch14.addConstraint(Sketcher.Constraint("Diameter", 0, Q("10 mm")))
sketch14.addConstraint(Sketcher.Constraint("DistanceX", -1, 1, 0, 3, Q("30 mm")))
sketch14.addConstraint(Sketcher.Constraint("DistanceY", 0, 3, -1, 1, Q("96.503877 mm")))
pad14 = body18.newObject("PartDesign::Pad", "Pad013")
pad14.Profile = sketch14
pad14.Length = 203.294
doc.recompute()

body19 = doc.addObject("PartDesign::Body", "Body018")
body19.BaseFeature = body18
boolean7 = body2.newObject("PartDesign::Boolean", "Boolean006")
boolean7.Type = "Cut"
boolean7.addObjects([body19])
doc.recompute()

body20 = doc.addObject("PartDesign::Body", "Body019")
body20.BaseFeature = body18
boolean8 = body3.newObject("PartDesign::Boolean", "Boolean007")
boolean8.Type = "Cut"
boolean8.addObjects([body20])
doc.recompute()

body21 = doc.addObject("PartDesign::Body", "Body020")
body21.BaseFeature = body18
boolean9 = body4.newObject("PartDesign::Boolean", "Boolean008")
boolean9.Type = "Cut"
boolean9.addObjects([body21])
doc.recompute()

boolean10 = body5.newObject("PartDesign::Boolean", "Boolean009")
boolean10.Type = "Cut"
boolean10.addObjects([body18])

doc.recompute()
